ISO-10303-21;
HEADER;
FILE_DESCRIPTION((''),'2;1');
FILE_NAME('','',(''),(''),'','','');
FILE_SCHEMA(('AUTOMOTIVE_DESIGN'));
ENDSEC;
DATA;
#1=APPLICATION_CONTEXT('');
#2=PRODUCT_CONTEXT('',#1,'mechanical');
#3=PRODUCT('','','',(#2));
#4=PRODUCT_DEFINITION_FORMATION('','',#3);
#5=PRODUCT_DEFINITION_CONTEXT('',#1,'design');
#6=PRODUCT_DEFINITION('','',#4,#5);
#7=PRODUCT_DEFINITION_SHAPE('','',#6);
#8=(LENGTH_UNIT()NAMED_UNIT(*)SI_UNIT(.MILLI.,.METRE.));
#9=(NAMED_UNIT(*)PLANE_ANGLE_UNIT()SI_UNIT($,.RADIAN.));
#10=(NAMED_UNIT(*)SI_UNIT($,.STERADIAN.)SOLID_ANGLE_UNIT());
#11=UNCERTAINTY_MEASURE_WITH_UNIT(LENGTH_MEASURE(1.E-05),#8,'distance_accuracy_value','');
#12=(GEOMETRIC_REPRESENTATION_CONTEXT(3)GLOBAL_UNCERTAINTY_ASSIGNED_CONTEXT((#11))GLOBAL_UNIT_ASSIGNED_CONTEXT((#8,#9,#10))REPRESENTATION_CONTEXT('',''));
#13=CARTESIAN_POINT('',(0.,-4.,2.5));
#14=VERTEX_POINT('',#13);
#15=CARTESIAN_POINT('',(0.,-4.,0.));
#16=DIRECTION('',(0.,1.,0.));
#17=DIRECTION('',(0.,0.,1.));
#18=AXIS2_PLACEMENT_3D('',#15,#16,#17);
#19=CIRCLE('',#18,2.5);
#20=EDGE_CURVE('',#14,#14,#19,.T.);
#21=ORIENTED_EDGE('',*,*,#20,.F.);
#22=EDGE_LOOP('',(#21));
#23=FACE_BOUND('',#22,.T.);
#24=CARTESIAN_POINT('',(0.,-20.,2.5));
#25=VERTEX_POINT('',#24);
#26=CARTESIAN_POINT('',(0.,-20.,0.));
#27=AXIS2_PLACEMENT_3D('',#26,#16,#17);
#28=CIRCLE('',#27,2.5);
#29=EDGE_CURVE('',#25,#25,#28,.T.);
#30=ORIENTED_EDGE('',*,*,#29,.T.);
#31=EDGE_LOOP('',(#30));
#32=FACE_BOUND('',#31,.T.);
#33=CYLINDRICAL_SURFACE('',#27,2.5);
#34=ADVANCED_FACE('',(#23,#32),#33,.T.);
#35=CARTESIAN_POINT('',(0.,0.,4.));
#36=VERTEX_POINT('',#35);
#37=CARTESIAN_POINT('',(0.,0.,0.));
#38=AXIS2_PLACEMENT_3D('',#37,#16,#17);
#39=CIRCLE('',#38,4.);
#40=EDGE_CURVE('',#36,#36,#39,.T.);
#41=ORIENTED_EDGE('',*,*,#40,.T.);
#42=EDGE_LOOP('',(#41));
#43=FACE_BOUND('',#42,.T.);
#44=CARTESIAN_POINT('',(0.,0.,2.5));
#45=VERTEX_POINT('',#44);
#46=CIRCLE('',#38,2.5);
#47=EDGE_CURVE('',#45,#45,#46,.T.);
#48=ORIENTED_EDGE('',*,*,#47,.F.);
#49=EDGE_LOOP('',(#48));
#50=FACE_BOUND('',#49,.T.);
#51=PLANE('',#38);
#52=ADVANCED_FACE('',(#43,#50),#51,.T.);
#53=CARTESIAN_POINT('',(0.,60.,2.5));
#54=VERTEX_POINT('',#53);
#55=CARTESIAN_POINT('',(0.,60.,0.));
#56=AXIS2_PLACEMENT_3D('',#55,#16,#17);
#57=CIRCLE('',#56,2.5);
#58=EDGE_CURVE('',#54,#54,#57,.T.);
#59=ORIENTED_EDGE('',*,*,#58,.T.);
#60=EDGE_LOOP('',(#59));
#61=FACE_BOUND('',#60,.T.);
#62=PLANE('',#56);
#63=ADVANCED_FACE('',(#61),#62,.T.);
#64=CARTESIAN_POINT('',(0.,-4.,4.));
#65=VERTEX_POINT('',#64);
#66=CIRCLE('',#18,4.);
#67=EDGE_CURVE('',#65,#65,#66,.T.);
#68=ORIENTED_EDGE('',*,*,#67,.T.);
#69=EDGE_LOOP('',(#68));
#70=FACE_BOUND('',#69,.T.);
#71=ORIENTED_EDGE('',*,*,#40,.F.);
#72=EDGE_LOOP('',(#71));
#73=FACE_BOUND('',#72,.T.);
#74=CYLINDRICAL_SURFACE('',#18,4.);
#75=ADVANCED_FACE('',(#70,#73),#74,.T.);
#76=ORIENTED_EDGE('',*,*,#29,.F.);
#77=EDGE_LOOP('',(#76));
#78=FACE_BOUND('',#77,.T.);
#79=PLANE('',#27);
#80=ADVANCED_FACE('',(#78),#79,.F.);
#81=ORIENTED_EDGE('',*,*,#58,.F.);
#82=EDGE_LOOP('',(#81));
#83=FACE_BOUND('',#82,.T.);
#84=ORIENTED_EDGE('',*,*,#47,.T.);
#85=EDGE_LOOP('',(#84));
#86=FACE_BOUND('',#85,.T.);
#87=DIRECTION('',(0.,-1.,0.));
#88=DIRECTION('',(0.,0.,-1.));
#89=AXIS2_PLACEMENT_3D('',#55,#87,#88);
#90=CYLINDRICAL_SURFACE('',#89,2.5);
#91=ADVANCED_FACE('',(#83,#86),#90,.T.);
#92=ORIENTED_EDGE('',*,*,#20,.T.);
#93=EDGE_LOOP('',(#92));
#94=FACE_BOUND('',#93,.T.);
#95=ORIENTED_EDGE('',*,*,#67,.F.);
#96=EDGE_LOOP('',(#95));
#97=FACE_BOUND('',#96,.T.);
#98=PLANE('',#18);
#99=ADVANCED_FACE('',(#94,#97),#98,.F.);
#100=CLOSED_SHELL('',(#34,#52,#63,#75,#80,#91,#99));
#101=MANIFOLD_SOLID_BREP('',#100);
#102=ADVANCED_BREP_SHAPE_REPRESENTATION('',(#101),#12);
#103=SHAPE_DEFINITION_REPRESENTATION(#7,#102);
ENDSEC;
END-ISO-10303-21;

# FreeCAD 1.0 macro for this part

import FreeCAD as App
import Part
import Sketcher

V = App.Vector
Q = App.Units.Quantity

doc = App.newDocument("Part")
body = doc.addObject("PartDesign::Body", "Body")

sketch1 = body.newObject("Sketcher::SketchObject", "Sketch")
sketch1.AttachmentSupport = (doc.getObject("XZ_Plane"), [""])
sketch1.MapMode = "FlatFace"
sketch1.addGeometry(Part.Circle(V(0, 0, 0), V(0, 0, 1), 2.5), False)
sketch1.addConstraint([
    Sketcher.Constraint("Coincident", 0, 3, -1, 1),
    Sketcher.Constraint("Diameter", 0, Q("5 mm")),
])
pad1 = body.newObject("PartDesign::Pad", "Pad")
pad1.Profile = sketch1
pad1.Length = 60
pad1.Reversed = True

sketch2 = body.newObject("Sketcher::SketchObject", "Sketch001")
sketch2.AttachmentSupport = (doc.getObject("XZ_Plane"), [""])
sketch2.MapMode = "FlatFace"
sketch2.addGeometry(Part.Circle(V(0, 0, 0), V(0, 0, 1), 4), False)
sketch2.addConstraint([
    Sketcher.Constraint("Coincident", 0, 3, -1, 1),
    Sketcher.Constraint("Diameter", 0, Q("8 mm")),
])
pad2 = body.newObject("PartDesign::Pad", "Pad001")
pad2.Profile = sketch2
pad2.Length = 4

sketch3 = body.newObject("Sketcher::SketchObject", "Sketch002")
sketch3.AttachmentSupport = (doc.getObject("XZ_Plane"), [""])
sketch3.MapMode = "FlatFace"
sketch3.AttachmentOffset = App.Placement(V(0, 0, 20), App.Rotation())
sketch3.addGeometry(Part.Circle(V(0, 0, 0), V(0, 0, 1), 2.5), False)
sketch3.addConstraint([
    Sketcher.Constraint("Coincident", 0, 3, -1, 1),
    Sketcher.Constraint("Diameter", 0, Q("5 mm")),
])
pad3 = body.newObject("PartDesign::Pad", "Pad002")
pad3.Profile = sketch3
pad3.Length = 20
pad3.Reversed = True

doc.recompute()
